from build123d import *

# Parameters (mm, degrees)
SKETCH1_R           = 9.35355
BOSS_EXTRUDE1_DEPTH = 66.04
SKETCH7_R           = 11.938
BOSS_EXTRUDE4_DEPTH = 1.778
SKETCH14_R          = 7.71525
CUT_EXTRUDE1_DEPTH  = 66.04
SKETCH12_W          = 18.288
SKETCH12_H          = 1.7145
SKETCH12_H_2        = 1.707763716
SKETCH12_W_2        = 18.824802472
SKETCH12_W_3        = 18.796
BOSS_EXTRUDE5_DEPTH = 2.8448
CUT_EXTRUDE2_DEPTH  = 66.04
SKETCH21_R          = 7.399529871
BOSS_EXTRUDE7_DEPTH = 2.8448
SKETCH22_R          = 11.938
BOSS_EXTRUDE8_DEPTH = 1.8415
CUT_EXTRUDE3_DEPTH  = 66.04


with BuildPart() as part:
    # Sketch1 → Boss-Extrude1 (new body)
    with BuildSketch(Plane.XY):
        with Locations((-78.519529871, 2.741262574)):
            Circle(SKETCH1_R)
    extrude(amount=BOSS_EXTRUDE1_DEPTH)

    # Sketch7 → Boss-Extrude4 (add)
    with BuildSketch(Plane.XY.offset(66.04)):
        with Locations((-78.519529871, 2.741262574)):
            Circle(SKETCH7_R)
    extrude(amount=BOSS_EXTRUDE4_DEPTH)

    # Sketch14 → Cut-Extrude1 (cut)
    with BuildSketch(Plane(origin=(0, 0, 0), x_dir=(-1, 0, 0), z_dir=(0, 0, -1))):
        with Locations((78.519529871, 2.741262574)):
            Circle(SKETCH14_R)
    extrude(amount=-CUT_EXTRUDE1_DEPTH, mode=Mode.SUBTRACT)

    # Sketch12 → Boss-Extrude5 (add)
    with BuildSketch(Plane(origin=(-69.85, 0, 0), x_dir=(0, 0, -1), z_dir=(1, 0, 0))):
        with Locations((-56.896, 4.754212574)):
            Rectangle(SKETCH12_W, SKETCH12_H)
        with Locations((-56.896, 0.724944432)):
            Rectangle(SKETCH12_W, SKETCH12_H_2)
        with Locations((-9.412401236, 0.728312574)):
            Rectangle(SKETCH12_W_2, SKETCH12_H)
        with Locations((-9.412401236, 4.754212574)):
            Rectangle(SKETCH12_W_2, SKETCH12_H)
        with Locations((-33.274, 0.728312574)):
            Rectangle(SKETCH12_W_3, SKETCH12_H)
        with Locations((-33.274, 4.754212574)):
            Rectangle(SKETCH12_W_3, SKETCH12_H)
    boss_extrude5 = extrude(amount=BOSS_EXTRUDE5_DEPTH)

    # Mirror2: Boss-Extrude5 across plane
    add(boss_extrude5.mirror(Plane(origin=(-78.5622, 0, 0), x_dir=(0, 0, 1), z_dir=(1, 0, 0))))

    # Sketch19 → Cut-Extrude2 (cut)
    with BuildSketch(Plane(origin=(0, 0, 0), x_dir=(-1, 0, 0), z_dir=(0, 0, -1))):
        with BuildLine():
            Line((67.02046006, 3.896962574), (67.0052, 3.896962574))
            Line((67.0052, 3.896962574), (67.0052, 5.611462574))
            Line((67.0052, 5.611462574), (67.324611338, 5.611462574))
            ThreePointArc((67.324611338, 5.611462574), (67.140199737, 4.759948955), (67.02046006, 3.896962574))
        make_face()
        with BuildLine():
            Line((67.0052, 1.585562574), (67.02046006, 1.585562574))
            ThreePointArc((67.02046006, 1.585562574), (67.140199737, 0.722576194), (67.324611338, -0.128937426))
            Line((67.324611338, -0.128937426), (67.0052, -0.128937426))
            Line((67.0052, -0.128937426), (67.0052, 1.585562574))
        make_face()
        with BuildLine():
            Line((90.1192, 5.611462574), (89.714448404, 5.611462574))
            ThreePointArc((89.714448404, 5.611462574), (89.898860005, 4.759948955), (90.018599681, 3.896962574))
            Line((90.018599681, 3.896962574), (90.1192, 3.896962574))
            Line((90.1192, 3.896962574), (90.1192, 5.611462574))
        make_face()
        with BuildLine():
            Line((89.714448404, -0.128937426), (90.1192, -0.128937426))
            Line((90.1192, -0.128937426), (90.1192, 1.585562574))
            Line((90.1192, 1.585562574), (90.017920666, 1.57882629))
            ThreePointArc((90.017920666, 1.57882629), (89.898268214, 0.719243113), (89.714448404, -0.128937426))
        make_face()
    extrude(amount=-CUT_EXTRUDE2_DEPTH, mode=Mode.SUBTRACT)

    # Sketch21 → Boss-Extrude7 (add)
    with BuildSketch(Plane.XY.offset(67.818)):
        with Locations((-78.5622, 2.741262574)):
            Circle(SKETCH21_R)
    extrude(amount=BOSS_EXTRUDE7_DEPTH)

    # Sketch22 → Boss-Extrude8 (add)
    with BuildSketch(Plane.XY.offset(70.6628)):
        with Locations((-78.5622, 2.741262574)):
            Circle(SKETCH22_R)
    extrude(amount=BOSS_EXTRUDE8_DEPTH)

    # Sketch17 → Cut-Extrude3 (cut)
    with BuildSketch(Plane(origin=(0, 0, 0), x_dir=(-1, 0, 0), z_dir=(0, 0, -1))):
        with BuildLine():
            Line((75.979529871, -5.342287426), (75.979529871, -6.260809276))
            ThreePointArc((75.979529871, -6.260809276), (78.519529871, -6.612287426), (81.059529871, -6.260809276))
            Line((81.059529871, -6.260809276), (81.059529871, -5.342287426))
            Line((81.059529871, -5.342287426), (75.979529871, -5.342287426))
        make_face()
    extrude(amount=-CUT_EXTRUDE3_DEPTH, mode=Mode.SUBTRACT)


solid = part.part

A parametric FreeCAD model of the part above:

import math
import FreeCAD as App
import Part
import Sketcher

V = App.Vector
Q = App.Units.Quantity


def add_polygon(sketch, points):
    """Adds a closed chain of lines whose ends are joined by coincident constraints."""
    first, n = sketch.GeometryCount, len(points)
    for a, b in zip(points, points[1:] + points[:1]):
        sketch.addGeometry(Part.LineSegment(App.Vector(*a, 0), App.Vector(*b, 0)), False)
    for i in range(n):
        sketch.addConstraint(Sketcher.Constraint("Coincident", first + i, 2, first + (i + 1) % n, 1))

doc = App.newDocument("Part")
body = doc.addObject("PartDesign::Body", "Body")

sketch1 = doc.addObject("Sketcher::SketchObject", "Sketch")
body.addObject(sketch1)
sketch1.AttachmentSupport = (doc.XY_Plane, [""])
sketch1.MapMode = "FlatFace"
sketch1.addGeometry(Part.Circle(V(-79, 3, 0), V(0, 0, 1), 9), False)
sketch1.addConstraint([
    Sketcher.Constraint("Diameter", 0, Q("0.7365 in")),
    Sketcher.Constraint("DistanceX", 0, 3, -1, 1, 78.51953),
    Sketcher.Constraint("DistanceY", -1, 1, 0, 3, 2.741263),
])
pad1 = doc.addObject("PartDesign::Pad", "Pad")
body.addObject(pad1)
pad1.Profile = sketch1
pad1.Length = Q("2.6 in")

sketch2 = doc.addObject("Sketcher::SketchObject", "Sketch001")
body.addObject(sketch2)
sketch2.AttachmentSupport = (doc.XY_Plane, [""])
sketch2.MapMode = "FlatFace"
sketch2.AttachmentOffset = App.Placement(V(0, 0, 2.6 * 25.4), App.Rotation())
sketch2.addGeometry(Part.Circle(V(-79, 3, 0), V(0, 0, 1), 12), False)
sketch2.addConstraint([
    Sketcher.Constraint("Diameter", 0, Q("0.94 in")),
    Sketcher.Constraint("DistanceX", 0, 3, -1, 1, 78.51953),
    Sketcher.Constraint("DistanceY", -1, 1, 0, 3, 2.741263),
])
pad2 = doc.addObject("PartDesign::Pad", "Pad001")
body.addObject(pad2)
pad2.Profile = sketch2
pad2.Length = Q("0.07 in")

sketch3 = doc.addObject("Sketcher::SketchObject", "Sketch002")
body.addObject(sketch3)
sketch3.AttachmentSupport = (doc.XY_Plane, [""])
sketch3.MapMode = "FlatFace"
sketch3.addGeometry(Part.Circle(V(-79, 3, 0), V(0, 0, 1), 8), False)
sketch3.addConstraint([
    Sketcher.Constraint("Diameter", 0, Q("0.6075 in")),
    Sketcher.Constraint("DistanceX", 0, 3, -1, 1, 78.51953),
    Sketcher.Constraint("DistanceY", -1, 1, 0, 3, 2.741263),
])
pocket1 = doc.addObject("PartDesign::Pocket", "Pocket")
body.addObject(pocket1)
pocket1.Profile = sketch3
pocket1.Length = Q("2.6 in")
pocket1.Reversed = True

sketch4 = doc.addObject("Sketcher::SketchObject", "Sketch003")
body.addObject(sketch4)
sketch4.AttachmentSupport = (doc.YZ_Plane, [""])
sketch4.MapMode = "FlatFace"
sketch4.AttachmentOffset = App.Placement(V(0, 0, -2.75 * 25.4), App.Rotation())
add_polygon(sketch4, [(5.6, 66), (3.9, 66), (3.9, 47.8), (5.6, 47.8)])
add_polygon(sketch4, [(1.6, 66), (-0.1, 66), (-0.1, 47.8), (1.6, 47.8)])
add_polygon(sketch4, [(1.6, 18.8), (-0.1, 18.8), (-0.1, 0), (1.6, 0)])
add_polygon(sketch4, [(5.6, 18.8), (3.9, 18.8), (3.9, 0), (5.6, 0)])
add_polygon(sketch4, [(1.6, 42.7), (-0.1, 42.7), (-0.1, 23.9), (1.6, 23.9)])
add_polygon(sketch4, [(5.6, 42.7), (3.9, 42.7), (3.9, 23.9), (5.6, 23.9)])
sketch4.addConstraint([
    Sketcher.Constraint("Horizontal", 0),
    Sketcher.Constraint("Vertical", 1),
    Sketcher.Constraint("Horizontal", 2),
    Sketcher.Constraint("Vertical", 3),
    Sketcher.Constraint("Horizontal", 4),
    Sketcher.Constraint("Vertical", 5),
    Sketcher.Constraint("Horizontal", 6),
    Sketcher.Constraint("Vertical", 7),
    Sketcher.Constraint("Horizontal", 8),
    Sketcher.Constraint("Vertical", 9),
    Sketcher.Constraint("Horizontal", 10),
    Sketcher.Constraint("Vertical", 11),
    Sketcher.Constraint("Horizontal", 12),
    Sketcher.Constraint("Vertical", 13),
    Sketcher.Constraint("Horizontal", 14),
    Sketcher.Constraint("Vertical", 15),
    Sketcher.Constraint("Horizontal", 16),
    Sketcher.Constraint("Vertical", 17),
    Sketcher.Constraint("Horizontal", 18),
    Sketcher.Constraint("Vertical", 19),
    Sketcher.Constraint("Horizontal", 20),
    Sketcher.Constraint("Vertical", 21),
    Sketcher.Constraint("Horizontal", 22),
    Sketcher.Constraint("Vertical", 23),
    Sketcher.Constraint("PointOnObject", 9, 2, -1),
    Sketcher.Constraint("PointOnObject", 13, 2, -1),
    Sketcher.Constraint("Horizontal", 3, 2, 4, 2),
    Sketcher.Constraint("Horizontal", 2, 2, 5, 2),
    Sketcher.Constraint("Horizontal", 11, 2, 12, 2),
    Sketcher.Constraint("Horizontal", 19, 2, 20, 2),
    Sketcher.Constraint("Horizontal", 18, 2, 21, 2),
    Sketcher.Constraint("Vertical", 5, 2, 8, 2),
    Sketcher.Constraint("Vertical", 1, 2, 12, 2),
    Sketcher.Constraint("Vertical", 3, 2, 14, 2),
    Sketcher.Constraint("Vertical", 9, 2, 16, 2),
    Sketcher.Constraint("Vertical", 11, 2, 18, 2),
    Sketcher.Constraint("Vertical", 13, 2, 20, 2),
    Sketcher.Constraint("Vertical", 15, 2, 22, 2),
    Sketcher.Constraint("Equal", 2, 8),
    Sketcher.Constraint("DistanceY", 1, 2, 1, 1, Q("0.72 in")),
    Sketcher.Constraint("DistanceY", 17, 2, 17, 1, Q("0.74 in")),
    Sketcher.Constraint("DistanceY", -1, 1, 0, 2, Q("2.6 in")),
    Sketcher.Constraint("DistanceY", 16, 2, 5, 2, Q("0.2 in")),
    Sketcher.Constraint("DistanceX", 0, 2, 0, 1, Q("0.0675 in")),
    Sketcher.Constraint("DistanceX", 4, 2, 3, 2, Q("0.226 in")),
    Sketcher.Constraint("DistanceX", 4, 2, 4, 1, 1.707764),
    Sketcher.Constraint("DistanceY", 9, 2, 9, 1, 18.824802),
    Sketcher.Constraint("DistanceX", -1, 1, 0, 2, 3.896963),
])
pad3 = doc.addObject("PartDesign::Pad", "Pad002")
body.addObject(pad3)
pad3.Profile = sketch4
pad3.Length = Q("0.112 in")
doc.recompute()

datumplane = doc.addObject("PartDesign::Plane", "DatumPlane")
body.addObject(datumplane)
datumplane.AttachmentSupport = (doc.YZ_Plane, [""])
datumplane.MapMode = "FlatFace"
datumplane.AttachmentOffset = App.Placement(V(0, 0, -3.093 * 25.4), App.Rotation())
mirrored = doc.addObject("PartDesign::Mirrored", "Mirrored")
body.addObject(mirrored)
mirrored.Originals = [pad3]
mirrored.MirrorPlane = (datumplane, [""])
body.Tip = mirrored

sketch5 = doc.addObject("Sketcher::SketchObject", "Sketch004")
body.addObject(sketch5)
sketch5.AttachmentSupport = (doc.XY_Plane, [""])
sketch5.MapMode = "FlatFace"
sketch5.addGeometry([
    Part.LineSegment(V(-67.005, 3.897, 0), V(-67.02, 3.897, 0)),
    Part.ArcOfCircle(Part.Circle(V(-78.52, 2.741, 0), V(0, 0, 1), 11.557), math.radians(5.74), math.radians(14.38)),
    Part.LineSegment(V(-67.325, 5.611, 0), V(-67.005, 5.611, 0)),
    Part.LineSegment(V(-67.005, 5.611, 0), V(-67.005, 3.897, 0)),
    Part.LineSegment(V(-67.02, 1.586, 0), V(-67.005, 1.586, 0)),
    Part.LineSegment(V(-67.005, 1.586, 0), V(-67.005, -0.129, 0)),
    Part.LineSegment(V(-67.005, -0.129, 0), V(-67.325, -0.129, 0)),
    Part.ArcOfCircle(Part.Circle(V(-78.52, 2.741, 0), V(0, 0, 1), 11.557), math.radians(-14.38), math.radians(-5.74)),
    Part.LineSegment(V(-90.119, 5.611, 0), V(-89.714, 5.611, 0)),
    Part.ArcOfCircle(Part.Circle(V(-78.52, 2.741, 0), V(0, 0, 1), 11.557), math.radians(165.62), math.radians(174.26)),
    Part.LineSegment(V(-90.019, 3.897, 0), V(-90.119, 3.897, 0)),
    Part.LineSegment(V(-90.119, 3.897, 0), V(-90.119, 5.611, 0)),
    Part.LineSegment(V(-89.714, -0.129, 0), V(-90.119, -0.129, 0)),
    Part.LineSegment(V(-90.119, -0.129, 0), V(-90.119, 1.586, 0)),
    Part.LineSegment(V(-90.119, 1.586, 0), V(-90.018, 1.579, 0)),
    Part.ArcOfCircle(Part.Circle(V(-78.52, 2.741, 0), V(0, 0, 1), 11.557), math.radians(-174.23), math.radians(-165.62)),
], False)
sketch5.addConstraint([
    Sketcher.Constraint("Coincident", 0, 2, 1, 1),
    Sketcher.Constraint("Coincident", 1, 2, 2, 1),
    Sketcher.Constraint("Coincident", 2, 2, 3, 1),
    Sketcher.Constraint("Coincident", 3, 2, 0, 1),
    Sketcher.Constraint("Coincident", 4, 2, 5, 1),
    Sketcher.Constraint("Coincident", 5, 2, 6, 1),
    Sketcher.Constraint("Coincident", 6, 2, 7, 1),
    Sketcher.Constraint("Coincident", 7, 2, 4, 1),
    Sketcher.Constraint("Coincident", 8, 2, 9, 1),
    Sketcher.Constraint("Coincident", 9, 2, 10, 1),
    Sketcher.Constraint("Coincident", 10, 2, 11, 1),
    Sketcher.Constraint("Coincident", 11, 2, 8, 1),
    Sketcher.Constraint("Coincident", 12, 2, 13, 1),
    Sketcher.Constraint("Coincident", 13, 2, 14, 1),
    Sketcher.Constraint("Coincident", 14, 2, 15, 1),
    Sketcher.Constraint("Coincident", 15, 2, 12, 1),
    Sketcher.Constraint("Horizontal", 0),
    Sketcher.Constraint("Horizontal", 2),
    Sketcher.Constraint("Vertical", 3),
    Sketcher.Constraint("Horizontal", 4),
    Sketcher.Constraint("Vertical", 5),
    Sketcher.Constraint("Horizontal", 6),
    Sketcher.Constraint("Horizontal", 8),
    Sketcher.Constraint("Horizontal", 10),
    Sketcher.Constraint("Vertical", 11),
    Sketcher.Constraint("Horizontal", 12),
    Sketcher.Constraint("Vertical", 13),
    Sketcher.Constraint("Coincident", 7, 3, 1, 3),
    Sketcher.Constraint("Coincident", 9, 3, 1, 3),
    Sketcher.Constraint("Coincident", 15, 3, 1, 3),
    Sketcher.Constraint("Equal", 1, 7),
    Sketcher.Constraint("Equal", 7, 9),
    Sketcher.Constraint("Equal", 9, 15),
    Sketcher.Constraint("Horizontal", 2, 2, 8, 2),
    Sketcher.Constraint("Horizontal", 3, 2, 9, 2),
    Sketcher.Constraint("Horizontal", 6, 2, 12, 2),
    Sketcher.Constraint("Horizontal", 7, 2, 13, 2),
    Sketcher.Constraint("Vertical", 3, 2, 4, 2),
    Sketcher.Constraint("Vertical", 1, 2, 6, 2),
    Sketcher.Constraint("Vertical", 0, 2, 7, 2),
    Sketcher.Constraint("Vertical", 11, 2, 12, 2),
    Sketcher.Constraint("Radius", 1, Q("0.455 in")),
    Sketcher.Constraint("DistanceY", 3, 2, 3, 1, Q("0.0675 in")),
    Sketcher.Constraint("DistanceX", 2, 2, -1, 1, Q("2.638 in")),
    Sketcher.Constraint("DistanceX", 10, 2, -1, 1, Q("3.548 in")),
    Sketcher.Constraint("DistanceY", 15, 3, 1, 2, Q("0.113 in")),
    Sketcher.Constraint("DistanceX", 10, 2, 10, 1, 0.1006),
    Sketcher.Constraint("DistanceX", 14, 2, -1, 1, 90.017921),
    Sketcher.Constraint("DistanceY", -1, 1, 1, 3, 2.741263),
])
pocket2 = doc.addObject("PartDesign::Pocket", "Pocket001")
body.addObject(pocket2)
pocket2.Profile = sketch5
pocket2.Length = Q("2.6 in")
pocket2.Reversed = True

sketch6 = doc.addObject("Sketcher::SketchObject", "Sketch005")
body.addObject(sketch6)
sketch6.AttachmentSupport = (doc.XY_Plane, [""])
sketch6.MapMode = "FlatFace"
sketch6.AttachmentOffset = App.Placement(V(0, 0, 2.67 * 25.4), App.Rotation())
sketch6.addGeometry(Part.Circle(V(-79, 3, 0), V(0, 0, 1), 7), False)
sketch6.addConstraint([
    Sketcher.Constraint("Diameter", 0, 14.79906),
    Sketcher.Constraint("DistanceX", 0, 3, -1, 1, Q("3.093 in")),
    Sketcher.Constraint("DistanceY", -1, 1, 0, 3, 2.741263),
])
pad4 = doc.addObject("PartDesign::Pad", "Pad003")
body.addObject(pad4)
pad4.Profile = sketch6
pad4.Length = Q("0.112 in")

sketch7 = doc.addObject("Sketcher::SketchObject", "Sketch006")
body.addObject(sketch7)
sketch7.AttachmentSupport = (doc.XY_Plane, [""])
sketch7.MapMode = "FlatFace"
sketch7.AttachmentOffset = App.Placement(V(0, 0, 2.782 * 25.4), App.Rotation())
sketch7.addGeometry(Part.Circle(V(-79, 3, 0), V(0, 0, 1), 12), False)
sketch7.addConstraint([
    Sketcher.Constraint("Diameter", 0, Q("0.94 in")),
    Sketcher.Constraint("DistanceX", 0, 3, -1, 1, Q("3.093 in")),
    Sketcher.Constraint("DistanceY", -1, 1, 0, 3, 2.741263),
])
pad5 = doc.addObject("PartDesign::Pad", "Pad004")
body.addObject(pad5)
pad5.Profile = sketch7
pad5.Length = Q("0.0725 in")

sketch8 = doc.addObject("Sketcher::SketchObject", "Sketch007")
body.addObject(sketch8)
sketch8.AttachmentSupport = (doc.XY_Plane, [""])
sketch8.MapMode = "FlatFace"
sketch8.addGeometry([
    Part.LineSegment(V(-76, -5.3, 0), V(-76, -6.3, 0)),
    Part.ArcOfCircle(Part.Circle(V(-78.5, 2.7, 0), V(0, 0, 1), 9.4), math.radians(-106), math.radians(-74)),
    Part.LineSegment(V(-81.1, -6.3, 0), V(-81.1, -5.3, 0)),
    Part.LineSegment(V(-81.1, -5.3, 0), V(-76, -5.3, 0)),
], False)
sketch8.addConstraint([
    Sketcher.Constraint("Coincident", 0, 2, 1, 2),
    Sketcher.Constraint("Coincident", 1, 1, 2, 1),
    Sketcher.Constraint("Coincident", 2, 2, 3, 1),
    Sketcher.Constraint("Coincident", 3, 2, 0, 1),
    Sketcher.Constraint("Vertical", 0),
    Sketcher.Constraint("Vertical", 2),
    Sketcher.Constraint("Horizontal", 3),
    Sketcher.Constraint("Horizontal", 0, 2, 1, 1),
    Sketcher.Constraint("DistanceX", 3, 1, 3, 2, Q("0.2 in")),
    Sketcher.Constraint("Radius", 1, 9.35355),
    Sketcher.Constraint("DistanceY", 0, 2, 0, 1, 0.918522),
    Sketcher.Constraint("DistanceX", 1, 3, -1, 1, 78.51953),
    Sketcher.Constraint("DistanceY", 0, 2, -1, 1, 6.260809),
])
pocket3 = doc.addObject("PartDesign::Pocket", "Pocket002")
body.addObject(pocket3)
pocket3.Profile = sketch8
pocket3.Length = Q("2.6 in")
pocket3.Reversed = True

doc.recompute()
